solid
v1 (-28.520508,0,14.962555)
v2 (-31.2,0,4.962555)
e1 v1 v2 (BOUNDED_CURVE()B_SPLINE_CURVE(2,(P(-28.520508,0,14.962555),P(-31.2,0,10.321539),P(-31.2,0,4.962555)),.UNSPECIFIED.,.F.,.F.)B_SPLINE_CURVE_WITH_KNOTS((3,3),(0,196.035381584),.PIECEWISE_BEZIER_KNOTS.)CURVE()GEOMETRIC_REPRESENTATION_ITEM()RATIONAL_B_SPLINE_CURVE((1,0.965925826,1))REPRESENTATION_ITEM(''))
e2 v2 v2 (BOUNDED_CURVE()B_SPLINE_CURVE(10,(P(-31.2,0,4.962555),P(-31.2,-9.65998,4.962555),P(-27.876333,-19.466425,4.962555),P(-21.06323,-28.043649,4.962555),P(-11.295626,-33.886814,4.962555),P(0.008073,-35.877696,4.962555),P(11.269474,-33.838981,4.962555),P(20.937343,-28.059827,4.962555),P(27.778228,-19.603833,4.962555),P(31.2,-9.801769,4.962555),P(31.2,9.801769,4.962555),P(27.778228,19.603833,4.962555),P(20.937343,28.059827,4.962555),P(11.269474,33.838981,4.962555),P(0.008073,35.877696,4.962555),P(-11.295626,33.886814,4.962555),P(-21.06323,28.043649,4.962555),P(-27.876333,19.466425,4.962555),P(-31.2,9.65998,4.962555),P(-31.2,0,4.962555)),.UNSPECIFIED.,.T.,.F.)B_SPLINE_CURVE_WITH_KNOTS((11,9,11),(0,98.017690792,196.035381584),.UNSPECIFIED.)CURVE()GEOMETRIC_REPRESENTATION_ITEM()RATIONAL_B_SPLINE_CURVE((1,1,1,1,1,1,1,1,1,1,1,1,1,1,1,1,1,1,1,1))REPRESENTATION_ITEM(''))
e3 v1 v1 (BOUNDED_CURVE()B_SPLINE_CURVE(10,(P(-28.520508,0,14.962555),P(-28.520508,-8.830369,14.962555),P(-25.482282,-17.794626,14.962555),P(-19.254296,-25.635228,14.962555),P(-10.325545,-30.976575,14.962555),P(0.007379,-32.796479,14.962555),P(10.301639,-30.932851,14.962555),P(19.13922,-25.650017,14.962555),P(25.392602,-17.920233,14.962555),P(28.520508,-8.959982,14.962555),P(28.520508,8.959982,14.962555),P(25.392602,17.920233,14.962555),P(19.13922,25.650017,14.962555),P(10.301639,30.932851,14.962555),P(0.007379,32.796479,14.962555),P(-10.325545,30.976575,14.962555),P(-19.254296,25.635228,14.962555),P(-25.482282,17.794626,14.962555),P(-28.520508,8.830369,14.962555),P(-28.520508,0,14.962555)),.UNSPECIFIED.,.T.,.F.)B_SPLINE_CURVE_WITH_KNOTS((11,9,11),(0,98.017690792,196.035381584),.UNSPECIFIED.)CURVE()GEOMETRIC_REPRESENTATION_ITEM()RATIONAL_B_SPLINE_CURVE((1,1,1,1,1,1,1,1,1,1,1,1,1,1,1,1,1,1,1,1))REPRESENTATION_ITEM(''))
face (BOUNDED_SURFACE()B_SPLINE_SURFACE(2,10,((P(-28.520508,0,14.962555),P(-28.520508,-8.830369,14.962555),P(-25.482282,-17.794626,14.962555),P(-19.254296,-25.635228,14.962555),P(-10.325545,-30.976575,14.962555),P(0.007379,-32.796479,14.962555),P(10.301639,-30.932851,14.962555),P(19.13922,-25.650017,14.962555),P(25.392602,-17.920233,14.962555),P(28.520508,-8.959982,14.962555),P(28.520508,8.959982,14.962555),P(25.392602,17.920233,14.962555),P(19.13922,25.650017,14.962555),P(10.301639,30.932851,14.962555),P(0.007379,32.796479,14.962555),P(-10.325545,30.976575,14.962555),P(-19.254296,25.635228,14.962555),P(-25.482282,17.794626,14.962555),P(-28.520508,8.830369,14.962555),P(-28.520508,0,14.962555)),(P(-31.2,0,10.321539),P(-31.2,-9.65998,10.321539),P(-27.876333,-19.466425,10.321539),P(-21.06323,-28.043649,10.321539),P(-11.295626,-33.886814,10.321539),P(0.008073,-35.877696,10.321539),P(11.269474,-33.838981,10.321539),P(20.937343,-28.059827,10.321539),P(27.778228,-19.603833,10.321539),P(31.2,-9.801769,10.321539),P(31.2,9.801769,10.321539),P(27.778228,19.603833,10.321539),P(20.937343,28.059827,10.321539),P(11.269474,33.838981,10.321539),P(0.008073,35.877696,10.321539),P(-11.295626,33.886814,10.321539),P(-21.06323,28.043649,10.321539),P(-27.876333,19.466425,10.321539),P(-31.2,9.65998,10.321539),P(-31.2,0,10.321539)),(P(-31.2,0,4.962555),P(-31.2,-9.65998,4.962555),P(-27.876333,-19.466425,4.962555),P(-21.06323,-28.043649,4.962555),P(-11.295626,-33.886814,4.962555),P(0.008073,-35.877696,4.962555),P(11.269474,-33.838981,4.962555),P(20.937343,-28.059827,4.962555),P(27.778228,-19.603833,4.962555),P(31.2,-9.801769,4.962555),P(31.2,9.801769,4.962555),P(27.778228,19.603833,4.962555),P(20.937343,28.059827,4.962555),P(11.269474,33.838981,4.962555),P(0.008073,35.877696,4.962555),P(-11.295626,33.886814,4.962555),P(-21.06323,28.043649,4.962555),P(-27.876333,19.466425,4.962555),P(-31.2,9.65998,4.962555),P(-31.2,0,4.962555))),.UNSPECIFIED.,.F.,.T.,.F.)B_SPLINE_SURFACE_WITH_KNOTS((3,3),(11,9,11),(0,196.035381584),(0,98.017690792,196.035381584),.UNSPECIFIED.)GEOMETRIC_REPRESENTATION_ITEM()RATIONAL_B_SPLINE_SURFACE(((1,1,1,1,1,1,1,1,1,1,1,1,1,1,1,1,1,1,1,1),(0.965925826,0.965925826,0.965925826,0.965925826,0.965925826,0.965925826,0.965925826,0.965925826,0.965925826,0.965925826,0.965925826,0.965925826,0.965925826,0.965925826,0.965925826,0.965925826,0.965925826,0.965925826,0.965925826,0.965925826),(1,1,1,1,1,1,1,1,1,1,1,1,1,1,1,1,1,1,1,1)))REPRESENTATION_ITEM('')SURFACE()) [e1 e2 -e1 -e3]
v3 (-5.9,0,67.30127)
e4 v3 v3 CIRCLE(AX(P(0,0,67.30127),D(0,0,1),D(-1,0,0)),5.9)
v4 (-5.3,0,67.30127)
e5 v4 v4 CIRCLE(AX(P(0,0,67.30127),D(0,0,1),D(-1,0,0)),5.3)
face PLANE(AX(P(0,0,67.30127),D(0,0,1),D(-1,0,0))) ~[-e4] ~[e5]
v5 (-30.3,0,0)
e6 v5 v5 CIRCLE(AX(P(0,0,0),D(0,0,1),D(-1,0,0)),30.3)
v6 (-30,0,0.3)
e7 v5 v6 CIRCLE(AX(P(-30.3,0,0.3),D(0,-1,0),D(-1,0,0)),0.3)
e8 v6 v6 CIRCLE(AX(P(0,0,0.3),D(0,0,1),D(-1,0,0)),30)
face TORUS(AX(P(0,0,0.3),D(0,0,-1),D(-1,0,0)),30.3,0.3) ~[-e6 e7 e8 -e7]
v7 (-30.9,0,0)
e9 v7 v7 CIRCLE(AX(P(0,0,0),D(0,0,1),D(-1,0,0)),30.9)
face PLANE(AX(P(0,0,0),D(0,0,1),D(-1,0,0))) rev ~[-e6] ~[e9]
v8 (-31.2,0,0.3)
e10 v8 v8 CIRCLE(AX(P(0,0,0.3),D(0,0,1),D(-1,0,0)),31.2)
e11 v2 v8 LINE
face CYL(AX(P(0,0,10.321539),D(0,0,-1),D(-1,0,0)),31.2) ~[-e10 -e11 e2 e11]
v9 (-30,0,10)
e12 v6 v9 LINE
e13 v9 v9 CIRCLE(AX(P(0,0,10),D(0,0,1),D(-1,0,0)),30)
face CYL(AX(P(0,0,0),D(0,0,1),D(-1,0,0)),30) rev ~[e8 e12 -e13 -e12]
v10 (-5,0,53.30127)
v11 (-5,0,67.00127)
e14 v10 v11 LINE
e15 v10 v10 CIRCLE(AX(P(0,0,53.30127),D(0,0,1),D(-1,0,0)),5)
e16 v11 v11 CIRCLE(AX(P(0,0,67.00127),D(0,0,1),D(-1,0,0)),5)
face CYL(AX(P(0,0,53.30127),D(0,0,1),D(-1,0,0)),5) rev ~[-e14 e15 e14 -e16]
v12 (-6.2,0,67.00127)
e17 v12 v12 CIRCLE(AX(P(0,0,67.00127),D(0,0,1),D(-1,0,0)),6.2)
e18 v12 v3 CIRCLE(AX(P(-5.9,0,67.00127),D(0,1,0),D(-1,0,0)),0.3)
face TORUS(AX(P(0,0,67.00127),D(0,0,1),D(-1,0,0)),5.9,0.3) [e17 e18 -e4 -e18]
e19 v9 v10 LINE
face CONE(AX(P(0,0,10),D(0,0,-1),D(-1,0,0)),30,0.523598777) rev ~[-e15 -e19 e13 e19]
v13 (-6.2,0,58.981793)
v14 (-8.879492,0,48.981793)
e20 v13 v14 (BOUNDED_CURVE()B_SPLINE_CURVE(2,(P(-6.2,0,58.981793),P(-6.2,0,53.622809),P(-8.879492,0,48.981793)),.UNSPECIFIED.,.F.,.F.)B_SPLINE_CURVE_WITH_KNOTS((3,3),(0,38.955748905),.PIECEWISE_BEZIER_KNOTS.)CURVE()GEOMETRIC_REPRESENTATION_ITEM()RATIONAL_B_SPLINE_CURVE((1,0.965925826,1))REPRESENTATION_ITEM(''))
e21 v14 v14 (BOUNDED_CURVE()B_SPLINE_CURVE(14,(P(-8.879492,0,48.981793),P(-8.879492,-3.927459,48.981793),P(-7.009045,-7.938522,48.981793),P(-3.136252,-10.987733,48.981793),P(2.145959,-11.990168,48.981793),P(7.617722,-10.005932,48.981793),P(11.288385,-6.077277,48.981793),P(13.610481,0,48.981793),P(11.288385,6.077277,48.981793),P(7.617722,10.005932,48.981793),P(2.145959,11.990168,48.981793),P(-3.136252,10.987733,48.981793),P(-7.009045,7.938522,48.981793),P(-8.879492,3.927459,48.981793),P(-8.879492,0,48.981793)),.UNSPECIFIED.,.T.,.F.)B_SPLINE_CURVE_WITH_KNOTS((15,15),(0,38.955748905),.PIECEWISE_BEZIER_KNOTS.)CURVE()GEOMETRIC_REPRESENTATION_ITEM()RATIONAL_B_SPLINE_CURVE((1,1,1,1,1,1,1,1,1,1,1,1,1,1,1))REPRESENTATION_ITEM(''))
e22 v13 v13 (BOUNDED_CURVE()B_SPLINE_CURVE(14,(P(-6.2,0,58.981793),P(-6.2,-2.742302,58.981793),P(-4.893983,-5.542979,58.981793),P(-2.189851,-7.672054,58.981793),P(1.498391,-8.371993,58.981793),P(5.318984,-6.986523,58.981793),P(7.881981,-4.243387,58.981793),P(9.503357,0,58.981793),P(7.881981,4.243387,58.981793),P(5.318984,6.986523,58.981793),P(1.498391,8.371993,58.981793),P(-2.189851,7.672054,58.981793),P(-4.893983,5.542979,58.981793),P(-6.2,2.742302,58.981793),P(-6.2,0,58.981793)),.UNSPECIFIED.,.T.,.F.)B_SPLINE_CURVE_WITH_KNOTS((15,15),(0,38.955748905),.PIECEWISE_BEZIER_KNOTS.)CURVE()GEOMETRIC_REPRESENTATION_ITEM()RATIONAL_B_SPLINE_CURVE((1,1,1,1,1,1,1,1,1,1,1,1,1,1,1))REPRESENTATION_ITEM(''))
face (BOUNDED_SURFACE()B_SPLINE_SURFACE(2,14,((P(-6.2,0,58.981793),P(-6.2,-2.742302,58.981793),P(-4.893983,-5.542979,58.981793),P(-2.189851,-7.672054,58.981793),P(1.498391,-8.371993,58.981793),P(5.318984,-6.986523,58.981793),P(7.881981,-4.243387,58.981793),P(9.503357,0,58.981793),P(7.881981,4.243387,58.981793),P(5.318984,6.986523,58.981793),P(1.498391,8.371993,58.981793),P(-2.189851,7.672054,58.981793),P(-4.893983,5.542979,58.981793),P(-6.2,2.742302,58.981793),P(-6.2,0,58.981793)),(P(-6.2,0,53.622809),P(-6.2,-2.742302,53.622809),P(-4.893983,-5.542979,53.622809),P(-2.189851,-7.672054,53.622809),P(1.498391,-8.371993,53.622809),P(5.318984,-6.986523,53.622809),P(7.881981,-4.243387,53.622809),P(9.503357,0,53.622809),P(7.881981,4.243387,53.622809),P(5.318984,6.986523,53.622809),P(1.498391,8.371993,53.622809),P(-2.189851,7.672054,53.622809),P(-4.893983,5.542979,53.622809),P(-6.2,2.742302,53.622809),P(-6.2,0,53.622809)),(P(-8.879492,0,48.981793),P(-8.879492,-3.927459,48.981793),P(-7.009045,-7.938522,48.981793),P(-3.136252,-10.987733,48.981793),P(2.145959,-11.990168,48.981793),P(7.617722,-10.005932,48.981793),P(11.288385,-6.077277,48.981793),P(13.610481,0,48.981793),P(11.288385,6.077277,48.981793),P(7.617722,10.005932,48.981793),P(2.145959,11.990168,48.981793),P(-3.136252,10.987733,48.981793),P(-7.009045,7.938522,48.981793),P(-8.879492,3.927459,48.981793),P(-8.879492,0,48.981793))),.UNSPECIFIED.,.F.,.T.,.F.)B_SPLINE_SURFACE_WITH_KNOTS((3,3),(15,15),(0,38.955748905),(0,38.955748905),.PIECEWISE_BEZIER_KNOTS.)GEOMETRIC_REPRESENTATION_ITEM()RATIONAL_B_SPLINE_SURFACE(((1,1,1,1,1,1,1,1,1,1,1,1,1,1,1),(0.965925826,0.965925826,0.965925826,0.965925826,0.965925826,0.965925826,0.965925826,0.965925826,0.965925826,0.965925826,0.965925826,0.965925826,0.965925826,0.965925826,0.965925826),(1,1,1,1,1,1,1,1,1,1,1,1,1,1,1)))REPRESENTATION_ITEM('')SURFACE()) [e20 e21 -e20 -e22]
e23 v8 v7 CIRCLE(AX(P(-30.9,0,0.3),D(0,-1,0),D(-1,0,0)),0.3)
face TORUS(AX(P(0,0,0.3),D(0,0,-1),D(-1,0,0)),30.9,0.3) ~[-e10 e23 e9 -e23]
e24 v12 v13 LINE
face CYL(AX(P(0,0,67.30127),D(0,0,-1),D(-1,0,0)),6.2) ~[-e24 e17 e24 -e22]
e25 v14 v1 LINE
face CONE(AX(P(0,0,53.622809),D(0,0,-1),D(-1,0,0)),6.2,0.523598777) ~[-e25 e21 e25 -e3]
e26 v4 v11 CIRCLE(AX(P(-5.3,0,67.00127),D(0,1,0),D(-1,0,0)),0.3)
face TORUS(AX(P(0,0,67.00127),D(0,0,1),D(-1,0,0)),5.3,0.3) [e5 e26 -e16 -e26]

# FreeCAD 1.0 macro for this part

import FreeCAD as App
import Part
import Sketcher
from FreeCAD import Vector
Q = App.Units.Quantity


def edges_at(feature, points):
    """Names of the edges that pass closest to the given points."""
    edges = feature.Shape.Edges
    near = lambda p: min(range(len(edges)), key=lambda i: edges[i].distToShape(Part.Vertex(*p))[0])
    return sorted({f"Edge{near(p) + 1}" for p in points})


def add_polygon(sketch, points):
    """Adds a closed chain of lines whose ends are joined by coincident constraints."""
    first, n = sketch.GeometryCount, len(points)
    for a, b in zip(points, points[1:] + points[:1]):
        sketch.addGeometry(Part.LineSegment(App.Vector(*a, 0), App.Vector(*b, 0)), False)
    for i in range(n):
        sketch.addConstraint(Sketcher.Constraint("Coincident", first + i, 2, first + (i + 1) % n, 1))

doc = App.newDocument("Part")
body = doc.addObject("PartDesign::Body", "Body")

# Sketch on XZ plane
sketch1 = body.newObject("Sketcher::SketchObject", "Sketch")
sketch1.AttachmentSupport = (doc.getObject("XZ_Plane"), [""])
sketch1.MapMode = "FlatFace"
add_polygon(sketch1, [(-31.2, 0), (-30, 0), (-30, 10), (-5, 53.30127), (-5, 67.30127), (-6.2, 67.30127), (-6.2, 53.622809), (-31.2, 10.321539)])  # lines 0-7
sketch1.addConstraint([
    Sketcher.Constraint("Horizontal", 0),
    Sketcher.Constraint("Vertical", 1),
    Sketcher.Constraint("Vertical", 3),
    Sketcher.Constraint("Horizontal", 4),
    Sketcher.Constraint("Vertical", 5),
    Sketcher.Constraint("Vertical", 7),
    Sketcher.Constraint("PointOnObject", 0, 2, -1),
    Sketcher.Constraint("Parallel", 2, 6),
    Sketcher.Constraint("Equal", 0, 4),
    Sketcher.Constraint("DistanceY", 1, 1, 1, 2, 10.0),
    Sketcher.Constraint("DistanceY", 3, 1, 3, 2, 14.0),
    Sketcher.Constraint("Angle", 2, Q("60 deg")),
    Sketcher.Constraint("Distance", 2, 50.0),
    Sketcher.Constraint("DistanceX", 0, 1, 0, 2, 1.2),
    Sketcher.Constraint("DistanceX", 0, 2, -1, 1, 30.0),
    Sketcher.Constraint("DistanceY", 5, 2, 5, 1, 13.678461),
])
revolution = body.newObject("PartDesign::Revolution", "Revolution")
revolution.Profile = sketch1
revolution.ReferenceAxis = (sketch1, ["V_Axis"])
revolution.Angle = 360
doc.recompute()

fillet = body.newObject("PartDesign::Fillet", "Fillet")
fillet.Base = (revolution, edges_at(revolution, [(31.2, 0, 10.322), (6.2, 0, 53.623)]))
fillet.Radius = 20
doc.recompute()

fillet2 = body.newObject("PartDesign::Fillet", "Fillet001")
fillet2.Base = (fillet, edges_at(fillet, [(5, 0, 67.301), (6.2, 0, 67.301)]))
fillet2.Radius = 0.3
doc.recompute()

fillet3 = body.newObject("PartDesign::Fillet", "Fillet002")
fillet3.Base = (fillet2, edges_at(fillet2, [(31.2, 0, 0), (30, 0, 0)]))
fillet3.Radius = 0.3

doc.recompute()
